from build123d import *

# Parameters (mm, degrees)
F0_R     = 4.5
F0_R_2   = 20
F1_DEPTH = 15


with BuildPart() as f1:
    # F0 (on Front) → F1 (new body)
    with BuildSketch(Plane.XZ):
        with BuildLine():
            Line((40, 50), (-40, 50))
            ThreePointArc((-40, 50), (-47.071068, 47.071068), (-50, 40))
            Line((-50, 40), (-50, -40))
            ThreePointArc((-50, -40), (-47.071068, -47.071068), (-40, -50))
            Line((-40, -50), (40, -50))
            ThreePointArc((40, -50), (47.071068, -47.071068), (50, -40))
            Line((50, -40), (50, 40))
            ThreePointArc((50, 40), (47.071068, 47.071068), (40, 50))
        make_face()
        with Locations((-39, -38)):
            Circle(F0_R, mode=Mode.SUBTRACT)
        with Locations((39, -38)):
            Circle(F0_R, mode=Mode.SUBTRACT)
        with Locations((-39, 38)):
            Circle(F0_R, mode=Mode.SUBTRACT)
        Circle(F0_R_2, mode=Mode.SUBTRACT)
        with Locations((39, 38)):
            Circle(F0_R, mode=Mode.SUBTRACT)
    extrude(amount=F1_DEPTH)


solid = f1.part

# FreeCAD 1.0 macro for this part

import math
import FreeCAD as App
import Part
import Sketcher
Q = App.Units.Quantity

doc = App.newDocument("Part")
body = doc.addObject("PartDesign::Body", "Body")

# Sketch on XZ plane
sketch1 = doc.addObject("Sketcher::SketchObject", "Sketch")
body.addObject(sketch1)
sketch1.AttachmentSupport = (doc.XZ_Plane, [""])
sketch1.MapMode = "FlatFace"
sketch1.addGeometry(Part.LineSegment(App.Vector(40, 50, 0), App.Vector(-40, 50, 0)), False)
sketch1.addGeometry(Part.ArcOfCircle(Part.Circle(App.Vector(-40, 40, 0), App.Vector(0, 0, 1), 10), math.radians(90), math.radians(180)), False)
sketch1.addGeometry(Part.LineSegment(App.Vector(-50, 40, 0), App.Vector(-50, -40, 0)), False)
sketch1.addGeometry(Part.ArcOfCircle(Part.Circle(App.Vector(-40, -40, 0), App.Vector(0, 0, 1), 10), math.radians(180), math.radians(270)), False)
sketch1.addGeometry(Part.LineSegment(App.Vector(-40, -50, 0), App.Vector(40, -50, 0)), False)
sketch1.addGeometry(Part.ArcOfCircle(Part.Circle(App.Vector(40, -40, 0), App.Vector(0, 0, 1), 10), math.radians(-90), math.radians(0)), False)
sketch1.addGeometry(Part.LineSegment(App.Vector(50, -40, 0), App.Vector(50, 40, 0)), False)
sketch1.addGeometry(Part.ArcOfCircle(Part.Circle(App.Vector(40, 40, 0), App.Vector(0, 0, 1), 10), math.radians(0), math.radians(90)), False)
sketch1.addGeometry(Part.Circle(App.Vector(-39, -38, 0), App.Vector(0, 0, 1), 4.5), False)
sketch1.addGeometry(Part.Circle(App.Vector(39, -38, 0), App.Vector(0, 0, 1), 4.5), False)
sketch1.addGeometry(Part.Circle(App.Vector(-39, 38, 0), App.Vector(0, 0, 1), 4.5), False)
sketch1.addGeometry(Part.Circle(App.Vector(0, 0, 0), App.Vector(0, 0, 1), 20), False)
sketch1.addGeometry(Part.Circle(App.Vector(39, 38, 0), App.Vector(0, 0, 1), 4.5), False)
sketch1.addConstraint(Sketcher.Constraint("Tangent", 0, 2, 1, 1))
sketch1.addConstraint(Sketcher.Constraint("Tangent", 1, 2, 2, 1))
sketch1.addConstraint(Sketcher.Constraint("Tangent", 2, 2, 3, 1))
sketch1.addConstraint(Sketcher.Constraint("Tangent", 3, 2, 4, 1))
sketch1.addConstraint(Sketcher.Constraint("Tangent", 4, 2, 5, 1))
sketch1.addConstraint(Sketcher.Constraint("Tangent", 5, 2, 6, 1))
sketch1.addConstraint(Sketcher.Constraint("Tangent", 6, 2, 7, 1))
sketch1.addConstraint(Sketcher.Constraint("Tangent", 7, 2, 0, 1))
sketch1.addConstraint(Sketcher.Constraint("Horizontal", 0))
sketch1.addConstraint(Sketcher.Constraint("Vertical", 2))
sketch1.addConstraint(Sketcher.Constraint("Horizontal", 4))
sketch1.addConstraint(Sketcher.Constraint("Vertical", 6))
sketch1.addConstraint(Sketcher.Constraint("Coincident", 11, 3, -1, 1))
sketch1.addConstraint(Sketcher.Constraint("Equal", 1, 3))
sketch1.addConstraint(Sketcher.Constraint("Equal", 3, 5))
sketch1.addConstraint(Sketcher.Constraint("Equal", 5, 7))
sketch1.addConstraint(Sketcher.Constraint("Equal", 8, 9))
sketch1.addConstraint(Sketcher.Constraint("Equal", 9, 10))
sketch1.addConstraint(Sketcher.Constraint("Equal", 10, 12))
sketch1.addConstraint(Sketcher.Constraint("Symmetric", 1, 3, 5, 3, -1, 1))
sketch1.addConstraint(Sketcher.Constraint("Symmetric", 9, 3, 10, 3, -1, 1))
sketch1.addConstraint(Sketcher.Constraint("Symmetric", 8, 3, 12, 3, -1, 1))
sketch1.addConstraint(Sketcher.Constraint("Symmetric", 8, 3, 9, 3, -2))
sketch1.addConstraint(Sketcher.Constraint("Equal", 4, 2))
sketch1.addConstraint(Sketcher.Constraint("Diameter", 8, Q("9 mm")))
sketch1.addConstraint(Sketcher.Constraint("Diameter", 11, Q("40 mm")))
sketch1.addConstraint(Sketcher.Constraint("Radius", 1, Q("9.999999 mm")))
sketch1.addConstraint(Sketcher.Constraint("DistanceX", 0, 2, 0, 1, Q("80 mm")))
sketch1.addConstraint(Sketcher.Constraint("DistanceX", 8, 3, -1, 1, Q("39 mm")))
sketch1.addConstraint(Sketcher.Constraint("DistanceY", 8, 3, -1, 1, Q("38 mm")))
pad1 = doc.addObject("PartDesign::Pad", "Pad")
body.addObject(pad1)
pad1.Profile = sketch1
pad1.Length = 15

doc.recompute()
